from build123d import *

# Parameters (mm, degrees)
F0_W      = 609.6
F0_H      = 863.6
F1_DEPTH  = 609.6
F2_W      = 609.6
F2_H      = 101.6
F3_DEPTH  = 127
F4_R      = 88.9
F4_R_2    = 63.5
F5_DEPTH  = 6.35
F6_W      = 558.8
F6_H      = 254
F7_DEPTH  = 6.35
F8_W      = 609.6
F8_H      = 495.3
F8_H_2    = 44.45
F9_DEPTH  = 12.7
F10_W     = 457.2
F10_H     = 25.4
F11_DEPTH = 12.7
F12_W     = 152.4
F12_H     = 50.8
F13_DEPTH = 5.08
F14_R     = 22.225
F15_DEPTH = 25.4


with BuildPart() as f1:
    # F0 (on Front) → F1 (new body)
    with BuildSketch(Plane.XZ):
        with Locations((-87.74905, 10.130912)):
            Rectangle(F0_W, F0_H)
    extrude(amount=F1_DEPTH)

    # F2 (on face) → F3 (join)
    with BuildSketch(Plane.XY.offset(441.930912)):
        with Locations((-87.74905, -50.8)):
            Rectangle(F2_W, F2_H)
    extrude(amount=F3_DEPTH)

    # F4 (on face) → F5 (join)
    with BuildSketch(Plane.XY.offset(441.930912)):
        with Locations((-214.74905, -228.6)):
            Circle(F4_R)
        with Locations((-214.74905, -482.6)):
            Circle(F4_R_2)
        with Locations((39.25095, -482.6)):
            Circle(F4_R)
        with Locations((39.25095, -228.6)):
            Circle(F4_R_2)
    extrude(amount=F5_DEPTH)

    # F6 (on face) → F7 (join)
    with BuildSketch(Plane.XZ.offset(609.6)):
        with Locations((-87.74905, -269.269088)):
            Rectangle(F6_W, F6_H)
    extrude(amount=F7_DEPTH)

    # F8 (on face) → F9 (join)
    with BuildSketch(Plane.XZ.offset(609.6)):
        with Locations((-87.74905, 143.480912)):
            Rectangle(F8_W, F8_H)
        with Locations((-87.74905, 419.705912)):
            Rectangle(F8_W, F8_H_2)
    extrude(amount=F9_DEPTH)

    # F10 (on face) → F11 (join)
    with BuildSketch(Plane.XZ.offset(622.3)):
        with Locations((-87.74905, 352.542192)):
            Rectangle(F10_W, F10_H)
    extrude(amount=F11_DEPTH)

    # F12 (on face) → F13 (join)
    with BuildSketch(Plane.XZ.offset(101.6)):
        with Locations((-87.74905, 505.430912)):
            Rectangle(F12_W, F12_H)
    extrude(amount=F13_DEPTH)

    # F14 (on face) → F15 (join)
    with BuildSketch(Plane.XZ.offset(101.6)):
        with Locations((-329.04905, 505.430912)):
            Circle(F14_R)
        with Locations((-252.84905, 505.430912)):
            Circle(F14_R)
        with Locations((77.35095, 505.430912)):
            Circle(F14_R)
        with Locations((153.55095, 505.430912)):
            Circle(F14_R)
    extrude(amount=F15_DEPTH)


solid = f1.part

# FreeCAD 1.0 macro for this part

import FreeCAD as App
import Part
import Sketcher

V = App.Vector
Q = App.Units.Quantity


def add_polygon(sketch, points):
    """Adds a closed chain of lines whose ends are joined by coincident constraints."""
    first, n = sketch.GeometryCount, len(points)
    for a, b in zip(points, points[1:] + points[:1]):
        sketch.addGeometry(Part.LineSegment(App.Vector(*a, 0), App.Vector(*b, 0)), False)
    for i in range(n):
        sketch.addConstraint(Sketcher.Constraint("Coincident", first + i, 2, first + (i + 1) % n, 1))

doc = App.newDocument("Part")
body = doc.addObject("PartDesign::Body", "Body")

sketch1 = body.newObject("Sketcher::SketchObject", "Sketch")
sketch1.AttachmentSupport = (doc.getObject("XZ_Plane"), [""])
sketch1.MapMode = "FlatFace"
add_polygon(sketch1, [(-393, 442), (-393, -422), (217, -422), (217, 442)])
sketch1.addConstraint([
    Sketcher.Constraint("Vertical", 0),
    Sketcher.Constraint("Horizontal", 1),
    Sketcher.Constraint("Vertical", 2),
    Sketcher.Constraint("Horizontal", 3),
    Sketcher.Constraint("DistanceX", 1, 1, 1, 2, Q("24 in")),
    Sketcher.Constraint("DistanceY", 0, 2, 0, 1, Q("34 in")),
    Sketcher.Constraint("DistanceX", 0, 2, -1, 1, Q("392.54905 mm")),
    Sketcher.Constraint("DistanceY", 0, 2, -1, 1, Q("421.669088 mm")),
])
pad1 = body.newObject("PartDesign::Pad", "Pad")
pad1.Profile = sketch1
pad1.Length = Q("24 in")

sketch2 = body.newObject("Sketcher::SketchObject", "Sketch001")
sketch2.AttachmentSupport = (doc.getObject("XY_Plane"), [""])
sketch2.MapMode = "FlatFace"
sketch2.AttachmentOffset = App.Placement(V(0, 0, 441.930912), App.Rotation())
add_polygon(sketch2, [(-393, 0), (-393, -102), (217, -102), (217, 0)])
sketch2.addConstraint([
    Sketcher.Constraint("Vertical", 0),
    Sketcher.Constraint("Horizontal", 1),
    Sketcher.Constraint("Vertical", 2),
    Sketcher.Constraint("Horizontal", 3),
    Sketcher.Constraint("PointOnObject", 2, 2, -1),
    Sketcher.Constraint("DistanceX", 1, 1, 1, 2, Q("24 in")),
    Sketcher.Constraint("DistanceY", 0, 2, 0, 1, Q("4 in")),
    Sketcher.Constraint("DistanceX", 0, 2, -1, 1, Q("392.54905 mm")),
])
pad2 = body.newObject("PartDesign::Pad", "Pad001")
pad2.Profile = sketch2
pad2.Length = Q("5 in")

sketch3 = body.newObject("Sketcher::SketchObject", "Sketch002")
sketch3.AttachmentSupport = (doc.getObject("XY_Plane"), [""])
sketch3.MapMode = "FlatFace"
sketch3.AttachmentOffset = App.Placement(V(0, 0, 441.930912), App.Rotation())
sketch3.addGeometry([
    Part.Circle(V(-215, -229, 0), V(0, 0, 1), 89),
    Part.Circle(V(-215, -483, 0), V(0, 0, 1), 64),
    Part.Circle(V(39, -483, 0), V(0, 0, 1), 89),
    Part.Circle(V(39, -229, 0), V(0, 0, 1), 64),
], False)
sketch3.addConstraint([
    Sketcher.Constraint("Equal", 0, 2),
    Sketcher.Constraint("Equal", 1, 3),
    Sketcher.Constraint("Horizontal", 1, 3, 2, 3),
    Sketcher.Constraint("Horizontal", 0, 3, 3, 3),
    Sketcher.Constraint("Vertical", 0, 3, 1, 3),
    Sketcher.Constraint("Vertical", 2, 3, 3, 3),
    Sketcher.Constraint("Diameter", 0, Q("7 in")),
    Sketcher.Constraint("Diameter", 1, Q("5 in")),
    Sketcher.Constraint("DistanceY", 0, 3, -1, 1, Q("9 in")),
    Sketcher.Constraint("DistanceY", 1, 3, -1, 1, Q("19 in")),
    Sketcher.Constraint("DistanceX", 1, 3, 2, 3, Q("10 in")),
    Sketcher.Constraint("DistanceX", 0, 3, -1, 1, Q("214.74905 mm")),
])
pad3 = body.newObject("PartDesign::Pad", "Pad002")
pad3.Profile = sketch3
pad3.Length = Q("0.25 in")

sketch4 = body.newObject("Sketcher::SketchObject", "Sketch003")
sketch4.AttachmentSupport = (doc.getObject("XZ_Plane"), [""])
sketch4.MapMode = "FlatFace"
sketch4.AttachmentOffset = App.Placement(V(0, 0, 24 * 25.4), App.Rotation())
add_polygon(sketch4, [(-367, -142), (-367, -396), (192, -396), (192, -142)])
sketch4.addConstraint([
    Sketcher.Constraint("Vertical", 0),
    Sketcher.Constraint("Horizontal", 1),
    Sketcher.Constraint("Vertical", 2),
    Sketcher.Constraint("Horizontal", 3),
    Sketcher.Constraint("DistanceX", 1, 1, 1, 2, Q("22 in")),
    Sketcher.Constraint("DistanceY", 0, 2, 0, 1, Q("10 in")),
    Sketcher.Constraint("DistanceX", 0, 2, -1, 1, Q("367.14905 mm")),
    Sketcher.Constraint("DistanceY", 0, 2, -1, 1, Q("396.269088 mm")),
])
pad4 = body.newObject("PartDesign::Pad", "Pad003")
pad4.Profile = sketch4
pad4.Length = Q("0.25 in")

sketch5 = body.newObject("Sketcher::SketchObject", "Sketch004")
sketch5.AttachmentSupport = (doc.getObject("XZ_Plane"), [""])
sketch5.MapMode = "FlatFace"
sketch5.AttachmentOffset = App.Placement(V(0, 0, 24 * 25.4), App.Rotation())
add_polygon(sketch5, [(-393, 391), (-393, -104), (217, -104), (217, 391)])
add_polygon(sketch5, [(-393, 442), (-393, 397), (217, 397), (217, 442)])
sketch5.addConstraint([
    Sketcher.Constraint("Vertical", 0),
    Sketcher.Constraint("Horizontal", 1),
    Sketcher.Constraint("Vertical", 2),
    Sketcher.Constraint("Horizontal", 3),
    Sketcher.Constraint("Vertical", 4),
    Sketcher.Constraint("Horizontal", 5),
    Sketcher.Constraint("Vertical", 6),
    Sketcher.Constraint("Horizontal", 7),
    Sketcher.Constraint("Vertical", 3, 2, 4, 2),
    Sketcher.Constraint("Vertical", 2, 2, 5, 2),
    Sketcher.Constraint("DistanceX", 1, 1, 1, 2, Q("24 in")),
    Sketcher.Constraint("DistanceY", 0, 2, 0, 1, Q("19.5 in")),
    Sketcher.Constraint("DistanceY", 2, 2, 6, 2, Q("2 in")),
    Sketcher.Constraint("DistanceY", 4, 2, 4, 1, Q("1.75 in")),
    Sketcher.Constraint("DistanceX", 0, 2, -1, 1, Q("392.54905 mm")),
    Sketcher.Constraint("DistanceY", 0, 2, -1, 1, Q("104.169088 mm")),
])
pad5 = body.newObject("PartDesign::Pad", "Pad004")
pad5.Profile = sketch5
pad5.Length = Q("0.5 in")

sketch6 = body.newObject("Sketcher::SketchObject", "Sketch005")
sketch6.AttachmentSupport = (doc.getObject("XZ_Plane"), [""])
sketch6.MapMode = "FlatFace"
sketch6.AttachmentOffset = App.Placement(V(0, 0, 24.5 * 25.4), App.Rotation())
add_polygon(sketch6, [(-316, 365), (-316, 340), (141, 340), (141, 365)])
sketch6.addConstraint([
    Sketcher.Constraint("Vertical", 0),
    Sketcher.Constraint("Horizontal", 1),
    Sketcher.Constraint("Vertical", 2),
    Sketcher.Constraint("Horizontal", 3),
    Sketcher.Constraint("DistanceX", 1, 1, 1, 2, Q("18 in")),
    Sketcher.Constraint("DistanceY", 0, 2, 0, 1, Q("1 in")),
    Sketcher.Constraint("DistanceX", 0, 2, -1, 1, Q("316.34905 mm")),
    Sketcher.Constraint("DistanceY", -1, 1, 0, 2, Q("339.842192 mm")),
])
pad6 = body.newObject("PartDesign::Pad", "Pad005")
pad6.Profile = sketch6
pad6.Length = Q("0.5 in")

sketch7 = body.newObject("Sketcher::SketchObject", "Sketch006")
sketch7.AttachmentSupport = (doc.getObject("XZ_Plane"), [""])
sketch7.MapMode = "FlatFace"
sketch7.AttachmentOffset = App.Placement(V(0, 0, 4 * 25.4), App.Rotation())
add_polygon(sketch7, [(-164, 531), (-164, 480), (-12, 480), (-12, 531)])
sketch7.addConstraint([
    Sketcher.Constraint("Vertical", 0),
    Sketcher.Constraint("Horizontal", 1),
    Sketcher.Constraint("Vertical", 2),
    Sketcher.Constraint("Horizontal", 3),
    Sketcher.Constraint("DistanceX", 1, 1, 1, 2, Q("6 in")),
    Sketcher.Constraint("DistanceY", 0, 2, 0, 1, Q("2 in")),
    Sketcher.Constraint("DistanceX", 0, 2, -1, 1, Q("163.94905 mm")),
    Sketcher.Constraint("DistanceY", -1, 1, 0, 2, Q("480.030912 mm")),
])
pad7 = body.newObject("PartDesign::Pad", "Pad006")
pad7.Profile = sketch7
pad7.Length = Q("0.2 in")

sketch8 = body.newObject("Sketcher::SketchObject", "Sketch007")
sketch8.AttachmentSupport = (doc.getObject("XZ_Plane"), [""])
sketch8.MapMode = "FlatFace"
sketch8.AttachmentOffset = App.Placement(V(0, 0, 4 * 25.4), App.Rotation())
sketch8.addGeometry([
    Part.Circle(V(-329, 505, 0), V(0, 0, 1), 22),
    Part.Circle(V(-253, 505, 0), V(0, 0, 1), 22),
    Part.Circle(V(77, 505, 0), V(0, 0, 1), 22),
    Part.Circle(V(154, 505, 0), V(0, 0, 1), 22),
], False)
sketch8.addConstraint([
    Sketcher.Constraint("Equal", 0, 1),
    Sketcher.Constraint("Equal", 1, 2),
    Sketcher.Constraint("Equal", 2, 3),
    Sketcher.Constraint("Horizontal", 0, 3, 1, 3),
    Sketcher.Constraint("Horizontal", 1, 3, 2, 3),
    Sketcher.Constraint("Horizontal", 2, 3, 3, 3),
    Sketcher.Constraint("Diameter", 0, Q("1.75 in")),
    Sketcher.Constraint("DistanceX", 0, 3, 1, 3, Q("3 in")),
    Sketcher.Constraint("DistanceX", 1, 3, 2, 3, Q("13 in")),
    Sketcher.Constraint("DistanceX", 2, 3, 3, 3, Q("3 in")),
    Sketcher.Constraint("DistanceX", 0, 3, -1, 1, Q("329.04905 mm")),
    Sketcher.Constraint("DistanceY", -1, 1, 0, 3, Q("505.430912 mm")),
])
pad8 = body.newObject("PartDesign::Pad", "Pad007")
pad8.Profile = sketch8
pad8.Length = Q("1 in")

doc.recompute()
